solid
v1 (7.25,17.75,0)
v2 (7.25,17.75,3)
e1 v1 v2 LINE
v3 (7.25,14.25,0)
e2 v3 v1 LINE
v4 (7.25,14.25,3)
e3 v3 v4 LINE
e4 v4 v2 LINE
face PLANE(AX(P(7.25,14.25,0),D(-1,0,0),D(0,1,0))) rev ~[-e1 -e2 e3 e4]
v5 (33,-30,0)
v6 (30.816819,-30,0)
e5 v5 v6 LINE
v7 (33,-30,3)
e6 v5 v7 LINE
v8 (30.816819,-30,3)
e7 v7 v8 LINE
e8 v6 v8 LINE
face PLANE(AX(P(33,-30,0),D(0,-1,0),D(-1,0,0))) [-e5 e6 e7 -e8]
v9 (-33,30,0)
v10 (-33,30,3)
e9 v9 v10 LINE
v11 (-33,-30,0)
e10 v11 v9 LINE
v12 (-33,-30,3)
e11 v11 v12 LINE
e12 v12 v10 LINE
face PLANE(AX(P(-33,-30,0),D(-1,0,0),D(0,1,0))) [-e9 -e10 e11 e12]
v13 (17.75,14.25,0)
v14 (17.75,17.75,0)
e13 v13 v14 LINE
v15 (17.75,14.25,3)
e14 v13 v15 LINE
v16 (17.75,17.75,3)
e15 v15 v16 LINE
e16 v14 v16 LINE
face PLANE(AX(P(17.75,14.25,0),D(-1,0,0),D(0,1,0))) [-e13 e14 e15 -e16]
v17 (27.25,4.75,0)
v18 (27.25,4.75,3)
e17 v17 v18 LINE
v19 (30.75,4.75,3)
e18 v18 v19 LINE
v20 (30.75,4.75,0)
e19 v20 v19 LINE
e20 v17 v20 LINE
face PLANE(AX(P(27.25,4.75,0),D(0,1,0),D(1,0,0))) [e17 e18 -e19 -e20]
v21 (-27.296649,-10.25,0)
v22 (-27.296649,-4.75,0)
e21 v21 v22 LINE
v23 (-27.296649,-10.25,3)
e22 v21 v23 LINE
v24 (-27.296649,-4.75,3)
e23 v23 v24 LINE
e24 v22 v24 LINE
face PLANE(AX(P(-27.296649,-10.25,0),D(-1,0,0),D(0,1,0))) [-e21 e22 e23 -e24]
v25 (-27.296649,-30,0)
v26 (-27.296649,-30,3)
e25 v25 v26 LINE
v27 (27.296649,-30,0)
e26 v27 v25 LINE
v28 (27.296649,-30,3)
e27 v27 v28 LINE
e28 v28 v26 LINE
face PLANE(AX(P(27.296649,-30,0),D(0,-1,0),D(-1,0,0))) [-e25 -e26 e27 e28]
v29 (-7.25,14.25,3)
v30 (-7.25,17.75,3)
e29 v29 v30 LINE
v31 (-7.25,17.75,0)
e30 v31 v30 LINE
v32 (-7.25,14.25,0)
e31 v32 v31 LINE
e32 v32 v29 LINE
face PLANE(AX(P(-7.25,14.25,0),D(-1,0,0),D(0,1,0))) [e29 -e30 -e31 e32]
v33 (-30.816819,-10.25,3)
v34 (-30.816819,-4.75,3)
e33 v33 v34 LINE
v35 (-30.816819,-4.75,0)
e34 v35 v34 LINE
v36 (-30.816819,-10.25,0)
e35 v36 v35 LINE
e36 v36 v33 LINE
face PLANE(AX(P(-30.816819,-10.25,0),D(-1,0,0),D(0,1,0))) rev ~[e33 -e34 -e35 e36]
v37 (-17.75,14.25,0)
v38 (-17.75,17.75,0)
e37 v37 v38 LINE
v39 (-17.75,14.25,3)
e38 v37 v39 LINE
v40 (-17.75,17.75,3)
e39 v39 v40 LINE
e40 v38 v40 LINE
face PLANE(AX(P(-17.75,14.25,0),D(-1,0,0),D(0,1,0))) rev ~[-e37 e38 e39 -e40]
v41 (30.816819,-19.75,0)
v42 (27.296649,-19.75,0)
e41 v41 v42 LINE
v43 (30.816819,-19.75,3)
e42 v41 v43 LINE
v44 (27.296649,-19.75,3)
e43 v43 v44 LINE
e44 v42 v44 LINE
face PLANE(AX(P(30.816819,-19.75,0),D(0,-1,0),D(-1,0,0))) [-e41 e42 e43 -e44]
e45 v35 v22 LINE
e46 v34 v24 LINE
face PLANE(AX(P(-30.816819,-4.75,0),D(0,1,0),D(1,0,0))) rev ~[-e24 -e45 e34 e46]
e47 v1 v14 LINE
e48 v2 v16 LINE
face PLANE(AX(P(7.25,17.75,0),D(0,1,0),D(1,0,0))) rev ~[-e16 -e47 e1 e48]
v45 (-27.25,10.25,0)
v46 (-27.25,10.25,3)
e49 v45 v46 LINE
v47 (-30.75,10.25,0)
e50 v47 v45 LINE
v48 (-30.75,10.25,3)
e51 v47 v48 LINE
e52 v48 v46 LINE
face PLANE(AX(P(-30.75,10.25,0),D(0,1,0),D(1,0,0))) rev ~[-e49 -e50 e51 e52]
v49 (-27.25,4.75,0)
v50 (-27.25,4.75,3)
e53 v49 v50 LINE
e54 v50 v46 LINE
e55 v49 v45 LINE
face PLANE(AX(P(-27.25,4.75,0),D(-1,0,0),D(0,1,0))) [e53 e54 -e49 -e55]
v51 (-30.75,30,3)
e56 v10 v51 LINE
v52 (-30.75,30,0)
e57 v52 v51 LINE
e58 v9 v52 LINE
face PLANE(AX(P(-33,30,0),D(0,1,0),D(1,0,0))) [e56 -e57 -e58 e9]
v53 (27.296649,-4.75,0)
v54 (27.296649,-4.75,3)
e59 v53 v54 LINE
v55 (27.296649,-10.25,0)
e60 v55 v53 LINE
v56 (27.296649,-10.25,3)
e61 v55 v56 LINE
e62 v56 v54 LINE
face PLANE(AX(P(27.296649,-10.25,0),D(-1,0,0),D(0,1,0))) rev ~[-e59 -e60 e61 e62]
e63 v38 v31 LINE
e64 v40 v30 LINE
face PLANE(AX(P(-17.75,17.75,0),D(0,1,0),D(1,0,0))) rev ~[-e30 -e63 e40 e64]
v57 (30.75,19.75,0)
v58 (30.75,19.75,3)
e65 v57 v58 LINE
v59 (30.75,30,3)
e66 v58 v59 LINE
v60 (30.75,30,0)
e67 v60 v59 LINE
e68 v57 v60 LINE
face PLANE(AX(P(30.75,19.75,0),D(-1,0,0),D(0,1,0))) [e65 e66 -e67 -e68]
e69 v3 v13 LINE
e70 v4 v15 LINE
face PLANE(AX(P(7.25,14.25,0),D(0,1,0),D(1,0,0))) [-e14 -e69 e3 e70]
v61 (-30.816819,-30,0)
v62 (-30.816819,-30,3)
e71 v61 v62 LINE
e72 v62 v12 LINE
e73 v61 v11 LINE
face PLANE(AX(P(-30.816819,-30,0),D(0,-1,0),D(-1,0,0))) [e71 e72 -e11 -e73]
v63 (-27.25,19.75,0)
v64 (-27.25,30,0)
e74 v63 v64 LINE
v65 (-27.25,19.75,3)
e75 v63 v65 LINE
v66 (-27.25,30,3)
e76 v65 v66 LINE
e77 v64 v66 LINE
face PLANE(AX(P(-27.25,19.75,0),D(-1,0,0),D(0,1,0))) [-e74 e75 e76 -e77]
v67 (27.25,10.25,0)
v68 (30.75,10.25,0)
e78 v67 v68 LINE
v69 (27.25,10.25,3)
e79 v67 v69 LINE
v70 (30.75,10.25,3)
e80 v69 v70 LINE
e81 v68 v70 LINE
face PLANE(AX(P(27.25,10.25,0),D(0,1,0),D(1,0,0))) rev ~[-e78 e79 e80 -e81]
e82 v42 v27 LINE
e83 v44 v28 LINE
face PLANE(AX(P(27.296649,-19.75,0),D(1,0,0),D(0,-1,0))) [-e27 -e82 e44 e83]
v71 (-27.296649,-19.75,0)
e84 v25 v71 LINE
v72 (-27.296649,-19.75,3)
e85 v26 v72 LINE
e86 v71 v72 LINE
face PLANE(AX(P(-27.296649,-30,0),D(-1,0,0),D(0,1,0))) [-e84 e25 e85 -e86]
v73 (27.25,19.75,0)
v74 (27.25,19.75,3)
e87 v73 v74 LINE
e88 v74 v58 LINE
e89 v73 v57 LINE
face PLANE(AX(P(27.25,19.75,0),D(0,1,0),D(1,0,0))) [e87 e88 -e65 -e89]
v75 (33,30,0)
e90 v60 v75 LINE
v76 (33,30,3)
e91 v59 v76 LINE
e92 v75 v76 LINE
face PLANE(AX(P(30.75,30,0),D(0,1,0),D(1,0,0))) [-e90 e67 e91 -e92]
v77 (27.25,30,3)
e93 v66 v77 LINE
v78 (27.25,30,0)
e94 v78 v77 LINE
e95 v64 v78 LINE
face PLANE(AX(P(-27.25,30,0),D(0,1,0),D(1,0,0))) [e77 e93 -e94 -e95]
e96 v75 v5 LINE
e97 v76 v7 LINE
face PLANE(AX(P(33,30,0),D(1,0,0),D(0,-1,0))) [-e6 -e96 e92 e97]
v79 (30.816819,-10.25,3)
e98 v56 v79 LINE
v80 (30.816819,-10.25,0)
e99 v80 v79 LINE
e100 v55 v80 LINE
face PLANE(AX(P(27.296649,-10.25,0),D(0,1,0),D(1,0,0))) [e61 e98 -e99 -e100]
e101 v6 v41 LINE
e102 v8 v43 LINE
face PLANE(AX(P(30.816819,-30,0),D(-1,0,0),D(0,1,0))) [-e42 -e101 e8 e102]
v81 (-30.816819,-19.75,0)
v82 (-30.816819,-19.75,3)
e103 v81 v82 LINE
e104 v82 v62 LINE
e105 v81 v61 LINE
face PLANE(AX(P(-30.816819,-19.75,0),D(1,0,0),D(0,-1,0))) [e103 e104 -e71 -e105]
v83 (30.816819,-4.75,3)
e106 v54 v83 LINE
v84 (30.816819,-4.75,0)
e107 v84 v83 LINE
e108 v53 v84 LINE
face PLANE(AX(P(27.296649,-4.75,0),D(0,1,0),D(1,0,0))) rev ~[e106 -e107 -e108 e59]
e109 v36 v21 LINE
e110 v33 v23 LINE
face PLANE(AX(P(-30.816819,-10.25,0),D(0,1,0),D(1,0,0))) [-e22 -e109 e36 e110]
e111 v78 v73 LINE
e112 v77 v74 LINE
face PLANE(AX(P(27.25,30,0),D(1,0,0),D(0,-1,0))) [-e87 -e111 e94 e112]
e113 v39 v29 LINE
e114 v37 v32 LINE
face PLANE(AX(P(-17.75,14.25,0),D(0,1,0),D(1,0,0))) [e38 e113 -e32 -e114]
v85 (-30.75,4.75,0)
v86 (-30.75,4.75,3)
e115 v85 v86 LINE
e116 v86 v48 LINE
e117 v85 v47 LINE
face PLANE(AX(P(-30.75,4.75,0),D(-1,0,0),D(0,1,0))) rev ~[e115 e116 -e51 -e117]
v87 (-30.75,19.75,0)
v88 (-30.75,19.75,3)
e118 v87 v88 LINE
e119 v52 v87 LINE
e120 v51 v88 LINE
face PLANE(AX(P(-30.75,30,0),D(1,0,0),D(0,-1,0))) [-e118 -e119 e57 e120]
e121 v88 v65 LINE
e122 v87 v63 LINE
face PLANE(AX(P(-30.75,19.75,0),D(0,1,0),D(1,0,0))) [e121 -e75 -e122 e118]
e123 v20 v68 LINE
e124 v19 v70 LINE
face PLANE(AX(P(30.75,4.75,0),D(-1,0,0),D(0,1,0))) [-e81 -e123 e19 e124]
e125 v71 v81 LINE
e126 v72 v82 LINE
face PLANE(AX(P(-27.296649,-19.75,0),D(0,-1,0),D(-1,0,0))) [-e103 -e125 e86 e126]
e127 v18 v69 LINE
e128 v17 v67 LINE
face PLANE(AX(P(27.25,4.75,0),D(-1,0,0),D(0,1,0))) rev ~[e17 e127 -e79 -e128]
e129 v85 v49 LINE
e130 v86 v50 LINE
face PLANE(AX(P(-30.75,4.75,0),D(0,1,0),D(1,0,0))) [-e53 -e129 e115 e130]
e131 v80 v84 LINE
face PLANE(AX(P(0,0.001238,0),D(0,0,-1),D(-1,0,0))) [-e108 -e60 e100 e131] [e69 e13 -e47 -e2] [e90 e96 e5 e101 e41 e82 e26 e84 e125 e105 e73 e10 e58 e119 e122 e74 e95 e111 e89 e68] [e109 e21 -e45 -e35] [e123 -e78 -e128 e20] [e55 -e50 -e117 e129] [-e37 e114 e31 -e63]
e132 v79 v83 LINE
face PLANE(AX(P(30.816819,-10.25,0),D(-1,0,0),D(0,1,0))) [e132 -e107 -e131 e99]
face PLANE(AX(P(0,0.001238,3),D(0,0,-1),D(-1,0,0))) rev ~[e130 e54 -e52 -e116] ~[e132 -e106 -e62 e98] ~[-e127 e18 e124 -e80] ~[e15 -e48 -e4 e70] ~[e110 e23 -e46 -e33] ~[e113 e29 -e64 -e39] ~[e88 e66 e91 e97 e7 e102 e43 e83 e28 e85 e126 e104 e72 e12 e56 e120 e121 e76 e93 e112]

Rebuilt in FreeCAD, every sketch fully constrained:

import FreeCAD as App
import Part
import Sketcher

V = App.Vector

doc = App.newDocument("Part")
body = doc.addObject("PartDesign::Body", "Body")

# Sketch on XY plane
sketch1 = body.newObject("Sketcher::SketchObject", "Sketch")
sketch1.AttachmentSupport = (doc.getObject("XY_Plane"), [""])
sketch1.MapMode = "FlatFace"
sketch1.addGeometry(Part.LineSegment(V(27.2, 30, 0), V(-27.2, 30, 0)), False)
sketch1.addGeometry(Part.LineSegment(V(-27.2, 30, 0), V(-27.2, 19.8, 0)), False)
sketch1.addGeometry(Part.LineSegment(V(-27.2, 19.8, 0), V(-30.8, 19.8, 0)), False)
sketch1.addGeometry(Part.LineSegment(V(-30.8, 19.8, 0), V(-30.8, 30, 0)), False)
sketch1.addGeometry(Part.LineSegment(V(-30.8, 30, 0), V(-33, 30, 0)), False)
sketch1.addGeometry(Part.LineSegment(V(-33, 30, 0), V(-33, -30, 0)), False)
sketch1.addGeometry(Part.LineSegment(V(-33, -30, 0), V(-30.8, -30, 0)), False)
sketch1.addGeometry(Part.LineSegment(V(-30.8, -30, 0), V(-30.8, -19.8, 0)), False)
sketch1.addGeometry(Part.LineSegment(V(-30.8, -19.8, 0), V(-27.3, -19.8, 0)), False)
sketch1.addGeometry(Part.LineSegment(V(-27.3, -19.8, 0), V(-27.3, -30, 0)), False)
sketch1.addGeometry(Part.LineSegment(V(-27.3, -30, 0), V(27.3, -30, 0)), False)
sketch1.addGeometry(Part.LineSegment(V(27.3, -30, 0), V(27.3, -19.8, 0)), False)
sketch1.addGeometry(Part.LineSegment(V(27.3, -19.8, 0), V(30.8, -19.8, 0)), False)
sketch1.addGeometry(Part.LineSegment(V(30.8, -19.8, 0), V(30.8, -30, 0)), False)
sketch1.addGeometry(Part.LineSegment(V(30.8, -30, 0), V(33, -30, 0)), False)
sketch1.addGeometry(Part.LineSegment(V(33, -30, 0), V(33, 30, 0)), False)
sketch1.addGeometry(Part.LineSegment(V(33, 30, 0), V(30.8, 30, 0)), False)
sketch1.addGeometry(Part.LineSegment(V(30.8, 30, 0), V(30.8, 19.8, 0)), False)
sketch1.addGeometry(Part.LineSegment(V(30.8, 19.8, 0), V(27.2, 19.8, 0)), False)
sketch1.addGeometry(Part.LineSegment(V(27.2, 19.8, 0), V(27.2, 30, 0)), False)
sketch1.addGeometry(Part.LineSegment(V(27.3, -10.2, 0), V(27.3, -4.8, 0)), False)
sketch1.addGeometry(Part.LineSegment(V(27.3, -4.8, 0), V(30.8, -4.8, 0)), False)
sketch1.addGeometry(Part.LineSegment(V(30.8, -4.8, 0), V(30.8, -10.2, 0)), False)
sketch1.addGeometry(Part.LineSegment(V(30.8, -10.2, 0), V(27.3, -10.2, 0)), False)
sketch1.addGeometry(Part.LineSegment(V(-30.8, -10.2, 0), V(-30.8, -4.8, 0)), False)
sketch1.addGeometry(Part.LineSegment(V(-30.8, -4.8, 0), V(-27.3, -4.8, 0)), False)
sketch1.addGeometry(Part.LineSegment(V(-27.3, -4.8, 0), V(-27.3, -10.2, 0)), False)
sketch1.addGeometry(Part.LineSegment(V(-27.3, -10.2, 0), V(-30.8, -10.2, 0)), False)
sketch1.addGeometry(Part.LineSegment(V(27.2, 4.8, 0), V(27.2, 10.2, 0)), False)
sketch1.addGeometry(Part.LineSegment(V(27.2, 10.2, 0), V(30.8, 10.2, 0)), False)
sketch1.addGeometry(Part.LineSegment(V(30.8, 10.2, 0), V(30.8, 4.8, 0)), False)
sketch1.addGeometry(Part.LineSegment(V(30.8, 4.8, 0), V(27.2, 4.8, 0)), False)
sketch1.addGeometry(Part.LineSegment(V(7.2, 14.2, 0), V(7.2, 17.8, 0)), False)
sketch1.addGeometry(Part.LineSegment(V(7.2, 17.8, 0), V(17.8, 17.8, 0)), False)
sketch1.addGeometry(Part.LineSegment(V(17.8, 17.8, 0), V(17.8, 14.2, 0)), False)
sketch1.addGeometry(Part.LineSegment(V(17.8, 14.2, 0), V(7.2, 14.2, 0)), False)
sketch1.addGeometry(Part.LineSegment(V(-30.8, 4.8, 0), V(-30.8, 10.2, 0)), False)
sketch1.addGeometry(Part.LineSegment(V(-30.8, 10.2, 0), V(-27.2, 10.2, 0)), False)
sketch1.addGeometry(Part.LineSegment(V(-27.2, 10.2, 0), V(-27.2, 4.8, 0)), False)
sketch1.addGeometry(Part.LineSegment(V(-27.2, 4.8, 0), V(-30.8, 4.8, 0)), False)
sketch1.addGeometry(Part.LineSegment(V(-17.8, 14.2, 0), V(-17.8, 17.8, 0)), False)
sketch1.addGeometry(Part.LineSegment(V(-17.8, 17.8, 0), V(-7.2, 17.8, 0)), False)
sketch1.addGeometry(Part.LineSegment(V(-7.2, 17.8, 0), V(-7.2, 14.2, 0)), False)
sketch1.addGeometry(Part.LineSegment(V(-7.2, 14.2, 0), V(-17.8, 14.2, 0)), False)
sketch1.addConstraint(Sketcher.Constraint("Coincident", 0, 2, 1, 1))
sketch1.addConstraint(Sketcher.Constraint("Coincident", 1, 2, 2, 1))
sketch1.addConstraint(Sketcher.Constraint("Coincident", 2, 2, 3, 1))
sketch1.addConstraint(Sketcher.Constraint("Coincident", 3, 2, 4, 1))
sketch1.addConstraint(Sketcher.Constraint("Coincident", 4, 2, 5, 1))
sketch1.addConstraint(Sketcher.Constraint("Coincident", 5, 2, 6, 1))
sketch1.addConstraint(Sketcher.Constraint("Coincident", 6, 2, 7, 1))
sketch1.addConstraint(Sketcher.Constraint("Coincident", 7, 2, 8, 1))
sketch1.addConstraint(Sketcher.Constraint("Coincident", 8, 2, 9, 1))
sketch1.addConstraint(Sketcher.Constraint("Coincident", 9, 2, 10, 1))
sketch1.addConstraint(Sketcher.Constraint("Coincident", 10, 2, 11, 1))
sketch1.addConstraint(Sketcher.Constraint("Coincident", 11, 2, 12, 1))
sketch1.addConstraint(Sketcher.Constraint("Coincident", 12, 2, 13, 1))
sketch1.addConstraint(Sketcher.Constraint("Coincident", 13, 2, 14, 1))
sketch1.addConstraint(Sketcher.Constraint("Coincident", 14, 2, 15, 1))
sketch1.addConstraint(Sketcher.Constraint("Coincident", 15, 2, 16, 1))
sketch1.addConstraint(Sketcher.Constraint("Coincident", 16, 2, 17, 1))
sketch1.addConstraint(Sketcher.Constraint("Coincident", 17, 2, 18, 1))
sketch1.addConstraint(Sketcher.Constraint("Coincident", 18, 2, 19, 1))
sketch1.addConstraint(Sketcher.Constraint("Coincident", 19, 2, 0, 1))
sketch1.addConstraint(Sketcher.Constraint("Coincident", 20, 2, 21, 1))
sketch1.addConstraint(Sketcher.Constraint("Coincident", 21, 2, 22, 1))
sketch1.addConstraint(Sketcher.Constraint("Coincident", 22, 2, 23, 1))
sketch1.addConstraint(Sketcher.Constraint("Coincident", 23, 2, 20, 1))
sketch1.addConstraint(Sketcher.Constraint("Coincident", 24, 2, 25, 1))
sketch1.addConstraint(Sketcher.Constraint("Coincident", 25, 2, 26, 1))
sketch1.addConstraint(Sketcher.Constraint("Coincident", 26, 2, 27, 1))
sketch1.addConstraint(Sketcher.Constraint("Coincident", 27, 2, 24, 1))
sketch1.addConstraint(Sketcher.Constraint("Coincident", 28, 2, 29, 1))
sketch1.addConstraint(Sketcher.Constraint("Coincident", 29, 2, 30, 1))
sketch1.addConstraint(Sketcher.Constraint("Coincident", 30, 2, 31, 1))
sketch1.addConstraint(Sketcher.Constraint("Coincident", 31, 2, 28, 1))
sketch1.addConstraint(Sketcher.Constraint("Coincident", 32, 2, 33, 1))
sketch1.addConstraint(Sketcher.Constraint("Coincident", 33, 2, 34, 1))
sketch1.addConstraint(Sketcher.Constraint("Coincident", 34, 2, 35, 1))
sketch1.addConstraint(Sketcher.Constraint("Coincident", 35, 2, 32, 1))
sketch1.addConstraint(Sketcher.Constraint("Coincident", 36, 2, 37, 1))
sketch1.addConstraint(Sketcher.Constraint("Coincident", 37, 2, 38, 1))
sketch1.addConstraint(Sketcher.Constraint("Coincident", 38, 2, 39, 1))
sketch1.addConstraint(Sketcher.Constraint("Coincident", 39, 2, 36, 1))
sketch1.addConstraint(Sketcher.Constraint("Coincident", 40, 2, 41, 1))
sketch1.addConstraint(Sketcher.Constraint("Coincident", 41, 2, 42, 1))
sketch1.addConstraint(Sketcher.Constraint("Coincident", 42, 2, 43, 1))
sketch1.addConstraint(Sketcher.Constraint("Coincident", 43, 2, 40, 1))
sketch1.addConstraint(Sketcher.Constraint("Horizontal", 0))
sketch1.addConstraint(Sketcher.Constraint("Vertical", 1))
sketch1.addConstraint(Sketcher.Constraint("Horizontal", 2))
sketch1.addConstraint(Sketcher.Constraint("Vertical", 3))
sketch1.addConstraint(Sketcher.Constraint("Horizontal", 4))
sketch1.addConstraint(Sketcher.Constraint("Vertical", 5))
sketch1.addConstraint(Sketcher.Constraint("Horizontal", 6))
sketch1.addConstraint(Sketcher.Constraint("Vertical", 7))
sketch1.addConstraint(Sketcher.Constraint("Horizontal", 8))
sketch1.addConstraint(Sketcher.Constraint("Vertical", 9))
sketch1.addConstraint(Sketcher.Constraint("Horizontal", 10))
sketch1.addConstraint(Sketcher.Constraint("Vertical", 11))
sketch1.addConstraint(Sketcher.Constraint("Horizontal", 12))
sketch1.addConstraint(Sketcher.Constraint("Vertical", 13))
sketch1.addConstraint(Sketcher.Constraint("Horizontal", 14))
sketch1.addConstraint(Sketcher.Constraint("Vertical", 15))
sketch1.addConstraint(Sketcher.Constraint("Horizontal", 16))
sketch1.addConstraint(Sketcher.Constraint("Vertical", 17))
sketch1.addConstraint(Sketcher.Constraint("Horizontal", 18))
sketch1.addConstraint(Sketcher.Constraint("Vertical", 19))
sketch1.addConstraint(Sketcher.Constraint("Vertical", 20))
sketch1.addConstraint(Sketcher.Constraint("Horizontal", 21))
sketch1.addConstraint(Sketcher.Constraint("Vertical", 22))
sketch1.addConstraint(Sketcher.Constraint("Horizontal", 23))
sketch1.addConstraint(Sketcher.Constraint("Vertical", 24))
sketch1.addConstraint(Sketcher.Constraint("Horizontal", 25))
sketch1.addConstraint(Sketcher.Constraint("Vertical", 26))
sketch1.addConstraint(Sketcher.Constraint("Horizontal", 27))
sketch1.addConstraint(Sketcher.Constraint("Vertical", 28))
sketch1.addConstraint(Sketcher.Constraint("Horizontal", 29))
sketch1.addConstraint(Sketcher.Constraint("Vertical", 30))
sketch1.addConstraint(Sketcher.Constraint("Horizontal", 31))
sketch1.addConstraint(Sketcher.Constraint("Vertical", 32))
sketch1.addConstraint(Sketcher.Constraint("Horizontal", 33))
sketch1.addConstraint(Sketcher.Constraint("Vertical", 34))
sketch1.addConstraint(Sketcher.Constraint("Horizontal", 35))
sketch1.addConstraint(Sketcher.Constraint("Vertical", 36))
sketch1.addConstraint(Sketcher.Constraint("Horizontal", 37))
sketch1.addConstraint(Sketcher.Constraint("Vertical", 38))
sketch1.addConstraint(Sketcher.Constraint("Horizontal", 39))
sketch1.addConstraint(Sketcher.Constraint("Vertical", 40))
sketch1.addConstraint(Sketcher.Constraint("Horizontal", 41))
sketch1.addConstraint(Sketcher.Constraint("Vertical", 42))
sketch1.addConstraint(Sketcher.Constraint("Horizontal", 43))
sketch1.addConstraint(Sketcher.Constraint("Symmetric", 4, 2, 14, 2, -1, 1))
sketch1.addConstraint(Sketcher.Constraint("Symmetric", 8, 2, 11, 2, -2))
sketch1.addConstraint(Sketcher.Constraint("Symmetric", 6, 2, 13, 2, -2))
sketch1.addConstraint(Sketcher.Constraint("Symmetric", 3, 2, 16, 2, -2))
sketch1.addConstraint(Sketcher.Constraint("Symmetric", 1, 2, 18, 2, -2))
sketch1.addConstraint(Sketcher.Constraint("Symmetric", 21, 2, 24, 2, -2))
sketch1.addConstraint(Sketcher.Constraint("Symmetric", 23, 2, 26, 2, -2))
sketch1.addConstraint(Sketcher.Constraint("Symmetric", 29, 2, 36, 2, -2))
sketch1.addConstraint(Sketcher.Constraint("Symmetric", 31, 2, 38, 2, -2))
sketch1.addConstraint(Sketcher.Constraint("Symmetric", 33, 2, 40, 2, -2))
sketch1.addConstraint(Sketcher.Constraint("Symmetric", 35, 2, 42, 2, -2))
sketch1.addConstraint(Sketcher.Constraint("Horizontal", 0, 2, 3, 2))
sketch1.addConstraint(Sketcher.Constraint("Horizontal", 6, 2, 9, 2))
sketch1.addConstraint(Sketcher.Constraint("Vertical", 11, 2, 20, 2))
sketch1.addConstraint(Sketcher.Constraint("Vertical", 13, 2, 21, 2))
sketch1.addConstraint(Sketcher.Constraint("Vertical", 19, 2, 28, 2))
sketch1.addConstraint(Sketcher.Constraint("Vertical", 17, 2, 29, 2))
sketch1.addConstraint(Sketcher.Constraint("Equal", 3, 7))
sketch1.addConstraint(Sketcher.Constraint("Equal", 26, 28))
sketch1.addConstraint(Sketcher.Constraint("Equal", 39, 32))
sketch1.addConstraint(Sketcher.Constraint("DistanceY", 5, 2, 5, 1, 60.0))
sketch1.addConstraint(Sketcher.Constraint("DistanceX", 0, 2, 0, 1, 54.5))
sketch1.addConstraint(Sketcher.Constraint("DistanceX", 2, 2, 2, 1, 3.5))
sketch1.addConstraint(Sketcher.Constraint("DistanceX", 33, 1, 33, 2, 10.5))
sketch1.addConstraint(Sketcher.Constraint("DistanceY", 20, 1, 20, 2, 5.5))
sketch1.addConstraint(Sketcher.Constraint("DistanceX", 4, 2, -1, 1, 33.0))
sketch1.addConstraint(Sketcher.Constraint("DistanceY", 11, 2, 20, 2, 15.0))
sketch1.addConstraint(Sketcher.Constraint("DistanceY", 20, 2, 28, 2, 15.0))
sketch1.addConstraint(Sketcher.Constraint("DistanceY", 30, 2, 17, 2, 15.0))
sketch1.addConstraint(Sketcher.Constraint("DistanceX", 32, 2, 18, 2, 20.0))
sketch1.addConstraint(Sketcher.Constraint("DistanceY", 32, 2, 18, 2, 2.0))
sketch1.addConstraint(Sketcher.Constraint("DistanceX", 10, 1, 10, 2, 54.593298))
sketch1.addConstraint(Sketcher.Constraint("DistanceX", 6, 1, 6, 2, 2.183181))
pad1 = body.newObject("PartDesign::Pad", "Pad")
pad1.Profile = sketch1
pad1.Length = 3

doc.recompute()
